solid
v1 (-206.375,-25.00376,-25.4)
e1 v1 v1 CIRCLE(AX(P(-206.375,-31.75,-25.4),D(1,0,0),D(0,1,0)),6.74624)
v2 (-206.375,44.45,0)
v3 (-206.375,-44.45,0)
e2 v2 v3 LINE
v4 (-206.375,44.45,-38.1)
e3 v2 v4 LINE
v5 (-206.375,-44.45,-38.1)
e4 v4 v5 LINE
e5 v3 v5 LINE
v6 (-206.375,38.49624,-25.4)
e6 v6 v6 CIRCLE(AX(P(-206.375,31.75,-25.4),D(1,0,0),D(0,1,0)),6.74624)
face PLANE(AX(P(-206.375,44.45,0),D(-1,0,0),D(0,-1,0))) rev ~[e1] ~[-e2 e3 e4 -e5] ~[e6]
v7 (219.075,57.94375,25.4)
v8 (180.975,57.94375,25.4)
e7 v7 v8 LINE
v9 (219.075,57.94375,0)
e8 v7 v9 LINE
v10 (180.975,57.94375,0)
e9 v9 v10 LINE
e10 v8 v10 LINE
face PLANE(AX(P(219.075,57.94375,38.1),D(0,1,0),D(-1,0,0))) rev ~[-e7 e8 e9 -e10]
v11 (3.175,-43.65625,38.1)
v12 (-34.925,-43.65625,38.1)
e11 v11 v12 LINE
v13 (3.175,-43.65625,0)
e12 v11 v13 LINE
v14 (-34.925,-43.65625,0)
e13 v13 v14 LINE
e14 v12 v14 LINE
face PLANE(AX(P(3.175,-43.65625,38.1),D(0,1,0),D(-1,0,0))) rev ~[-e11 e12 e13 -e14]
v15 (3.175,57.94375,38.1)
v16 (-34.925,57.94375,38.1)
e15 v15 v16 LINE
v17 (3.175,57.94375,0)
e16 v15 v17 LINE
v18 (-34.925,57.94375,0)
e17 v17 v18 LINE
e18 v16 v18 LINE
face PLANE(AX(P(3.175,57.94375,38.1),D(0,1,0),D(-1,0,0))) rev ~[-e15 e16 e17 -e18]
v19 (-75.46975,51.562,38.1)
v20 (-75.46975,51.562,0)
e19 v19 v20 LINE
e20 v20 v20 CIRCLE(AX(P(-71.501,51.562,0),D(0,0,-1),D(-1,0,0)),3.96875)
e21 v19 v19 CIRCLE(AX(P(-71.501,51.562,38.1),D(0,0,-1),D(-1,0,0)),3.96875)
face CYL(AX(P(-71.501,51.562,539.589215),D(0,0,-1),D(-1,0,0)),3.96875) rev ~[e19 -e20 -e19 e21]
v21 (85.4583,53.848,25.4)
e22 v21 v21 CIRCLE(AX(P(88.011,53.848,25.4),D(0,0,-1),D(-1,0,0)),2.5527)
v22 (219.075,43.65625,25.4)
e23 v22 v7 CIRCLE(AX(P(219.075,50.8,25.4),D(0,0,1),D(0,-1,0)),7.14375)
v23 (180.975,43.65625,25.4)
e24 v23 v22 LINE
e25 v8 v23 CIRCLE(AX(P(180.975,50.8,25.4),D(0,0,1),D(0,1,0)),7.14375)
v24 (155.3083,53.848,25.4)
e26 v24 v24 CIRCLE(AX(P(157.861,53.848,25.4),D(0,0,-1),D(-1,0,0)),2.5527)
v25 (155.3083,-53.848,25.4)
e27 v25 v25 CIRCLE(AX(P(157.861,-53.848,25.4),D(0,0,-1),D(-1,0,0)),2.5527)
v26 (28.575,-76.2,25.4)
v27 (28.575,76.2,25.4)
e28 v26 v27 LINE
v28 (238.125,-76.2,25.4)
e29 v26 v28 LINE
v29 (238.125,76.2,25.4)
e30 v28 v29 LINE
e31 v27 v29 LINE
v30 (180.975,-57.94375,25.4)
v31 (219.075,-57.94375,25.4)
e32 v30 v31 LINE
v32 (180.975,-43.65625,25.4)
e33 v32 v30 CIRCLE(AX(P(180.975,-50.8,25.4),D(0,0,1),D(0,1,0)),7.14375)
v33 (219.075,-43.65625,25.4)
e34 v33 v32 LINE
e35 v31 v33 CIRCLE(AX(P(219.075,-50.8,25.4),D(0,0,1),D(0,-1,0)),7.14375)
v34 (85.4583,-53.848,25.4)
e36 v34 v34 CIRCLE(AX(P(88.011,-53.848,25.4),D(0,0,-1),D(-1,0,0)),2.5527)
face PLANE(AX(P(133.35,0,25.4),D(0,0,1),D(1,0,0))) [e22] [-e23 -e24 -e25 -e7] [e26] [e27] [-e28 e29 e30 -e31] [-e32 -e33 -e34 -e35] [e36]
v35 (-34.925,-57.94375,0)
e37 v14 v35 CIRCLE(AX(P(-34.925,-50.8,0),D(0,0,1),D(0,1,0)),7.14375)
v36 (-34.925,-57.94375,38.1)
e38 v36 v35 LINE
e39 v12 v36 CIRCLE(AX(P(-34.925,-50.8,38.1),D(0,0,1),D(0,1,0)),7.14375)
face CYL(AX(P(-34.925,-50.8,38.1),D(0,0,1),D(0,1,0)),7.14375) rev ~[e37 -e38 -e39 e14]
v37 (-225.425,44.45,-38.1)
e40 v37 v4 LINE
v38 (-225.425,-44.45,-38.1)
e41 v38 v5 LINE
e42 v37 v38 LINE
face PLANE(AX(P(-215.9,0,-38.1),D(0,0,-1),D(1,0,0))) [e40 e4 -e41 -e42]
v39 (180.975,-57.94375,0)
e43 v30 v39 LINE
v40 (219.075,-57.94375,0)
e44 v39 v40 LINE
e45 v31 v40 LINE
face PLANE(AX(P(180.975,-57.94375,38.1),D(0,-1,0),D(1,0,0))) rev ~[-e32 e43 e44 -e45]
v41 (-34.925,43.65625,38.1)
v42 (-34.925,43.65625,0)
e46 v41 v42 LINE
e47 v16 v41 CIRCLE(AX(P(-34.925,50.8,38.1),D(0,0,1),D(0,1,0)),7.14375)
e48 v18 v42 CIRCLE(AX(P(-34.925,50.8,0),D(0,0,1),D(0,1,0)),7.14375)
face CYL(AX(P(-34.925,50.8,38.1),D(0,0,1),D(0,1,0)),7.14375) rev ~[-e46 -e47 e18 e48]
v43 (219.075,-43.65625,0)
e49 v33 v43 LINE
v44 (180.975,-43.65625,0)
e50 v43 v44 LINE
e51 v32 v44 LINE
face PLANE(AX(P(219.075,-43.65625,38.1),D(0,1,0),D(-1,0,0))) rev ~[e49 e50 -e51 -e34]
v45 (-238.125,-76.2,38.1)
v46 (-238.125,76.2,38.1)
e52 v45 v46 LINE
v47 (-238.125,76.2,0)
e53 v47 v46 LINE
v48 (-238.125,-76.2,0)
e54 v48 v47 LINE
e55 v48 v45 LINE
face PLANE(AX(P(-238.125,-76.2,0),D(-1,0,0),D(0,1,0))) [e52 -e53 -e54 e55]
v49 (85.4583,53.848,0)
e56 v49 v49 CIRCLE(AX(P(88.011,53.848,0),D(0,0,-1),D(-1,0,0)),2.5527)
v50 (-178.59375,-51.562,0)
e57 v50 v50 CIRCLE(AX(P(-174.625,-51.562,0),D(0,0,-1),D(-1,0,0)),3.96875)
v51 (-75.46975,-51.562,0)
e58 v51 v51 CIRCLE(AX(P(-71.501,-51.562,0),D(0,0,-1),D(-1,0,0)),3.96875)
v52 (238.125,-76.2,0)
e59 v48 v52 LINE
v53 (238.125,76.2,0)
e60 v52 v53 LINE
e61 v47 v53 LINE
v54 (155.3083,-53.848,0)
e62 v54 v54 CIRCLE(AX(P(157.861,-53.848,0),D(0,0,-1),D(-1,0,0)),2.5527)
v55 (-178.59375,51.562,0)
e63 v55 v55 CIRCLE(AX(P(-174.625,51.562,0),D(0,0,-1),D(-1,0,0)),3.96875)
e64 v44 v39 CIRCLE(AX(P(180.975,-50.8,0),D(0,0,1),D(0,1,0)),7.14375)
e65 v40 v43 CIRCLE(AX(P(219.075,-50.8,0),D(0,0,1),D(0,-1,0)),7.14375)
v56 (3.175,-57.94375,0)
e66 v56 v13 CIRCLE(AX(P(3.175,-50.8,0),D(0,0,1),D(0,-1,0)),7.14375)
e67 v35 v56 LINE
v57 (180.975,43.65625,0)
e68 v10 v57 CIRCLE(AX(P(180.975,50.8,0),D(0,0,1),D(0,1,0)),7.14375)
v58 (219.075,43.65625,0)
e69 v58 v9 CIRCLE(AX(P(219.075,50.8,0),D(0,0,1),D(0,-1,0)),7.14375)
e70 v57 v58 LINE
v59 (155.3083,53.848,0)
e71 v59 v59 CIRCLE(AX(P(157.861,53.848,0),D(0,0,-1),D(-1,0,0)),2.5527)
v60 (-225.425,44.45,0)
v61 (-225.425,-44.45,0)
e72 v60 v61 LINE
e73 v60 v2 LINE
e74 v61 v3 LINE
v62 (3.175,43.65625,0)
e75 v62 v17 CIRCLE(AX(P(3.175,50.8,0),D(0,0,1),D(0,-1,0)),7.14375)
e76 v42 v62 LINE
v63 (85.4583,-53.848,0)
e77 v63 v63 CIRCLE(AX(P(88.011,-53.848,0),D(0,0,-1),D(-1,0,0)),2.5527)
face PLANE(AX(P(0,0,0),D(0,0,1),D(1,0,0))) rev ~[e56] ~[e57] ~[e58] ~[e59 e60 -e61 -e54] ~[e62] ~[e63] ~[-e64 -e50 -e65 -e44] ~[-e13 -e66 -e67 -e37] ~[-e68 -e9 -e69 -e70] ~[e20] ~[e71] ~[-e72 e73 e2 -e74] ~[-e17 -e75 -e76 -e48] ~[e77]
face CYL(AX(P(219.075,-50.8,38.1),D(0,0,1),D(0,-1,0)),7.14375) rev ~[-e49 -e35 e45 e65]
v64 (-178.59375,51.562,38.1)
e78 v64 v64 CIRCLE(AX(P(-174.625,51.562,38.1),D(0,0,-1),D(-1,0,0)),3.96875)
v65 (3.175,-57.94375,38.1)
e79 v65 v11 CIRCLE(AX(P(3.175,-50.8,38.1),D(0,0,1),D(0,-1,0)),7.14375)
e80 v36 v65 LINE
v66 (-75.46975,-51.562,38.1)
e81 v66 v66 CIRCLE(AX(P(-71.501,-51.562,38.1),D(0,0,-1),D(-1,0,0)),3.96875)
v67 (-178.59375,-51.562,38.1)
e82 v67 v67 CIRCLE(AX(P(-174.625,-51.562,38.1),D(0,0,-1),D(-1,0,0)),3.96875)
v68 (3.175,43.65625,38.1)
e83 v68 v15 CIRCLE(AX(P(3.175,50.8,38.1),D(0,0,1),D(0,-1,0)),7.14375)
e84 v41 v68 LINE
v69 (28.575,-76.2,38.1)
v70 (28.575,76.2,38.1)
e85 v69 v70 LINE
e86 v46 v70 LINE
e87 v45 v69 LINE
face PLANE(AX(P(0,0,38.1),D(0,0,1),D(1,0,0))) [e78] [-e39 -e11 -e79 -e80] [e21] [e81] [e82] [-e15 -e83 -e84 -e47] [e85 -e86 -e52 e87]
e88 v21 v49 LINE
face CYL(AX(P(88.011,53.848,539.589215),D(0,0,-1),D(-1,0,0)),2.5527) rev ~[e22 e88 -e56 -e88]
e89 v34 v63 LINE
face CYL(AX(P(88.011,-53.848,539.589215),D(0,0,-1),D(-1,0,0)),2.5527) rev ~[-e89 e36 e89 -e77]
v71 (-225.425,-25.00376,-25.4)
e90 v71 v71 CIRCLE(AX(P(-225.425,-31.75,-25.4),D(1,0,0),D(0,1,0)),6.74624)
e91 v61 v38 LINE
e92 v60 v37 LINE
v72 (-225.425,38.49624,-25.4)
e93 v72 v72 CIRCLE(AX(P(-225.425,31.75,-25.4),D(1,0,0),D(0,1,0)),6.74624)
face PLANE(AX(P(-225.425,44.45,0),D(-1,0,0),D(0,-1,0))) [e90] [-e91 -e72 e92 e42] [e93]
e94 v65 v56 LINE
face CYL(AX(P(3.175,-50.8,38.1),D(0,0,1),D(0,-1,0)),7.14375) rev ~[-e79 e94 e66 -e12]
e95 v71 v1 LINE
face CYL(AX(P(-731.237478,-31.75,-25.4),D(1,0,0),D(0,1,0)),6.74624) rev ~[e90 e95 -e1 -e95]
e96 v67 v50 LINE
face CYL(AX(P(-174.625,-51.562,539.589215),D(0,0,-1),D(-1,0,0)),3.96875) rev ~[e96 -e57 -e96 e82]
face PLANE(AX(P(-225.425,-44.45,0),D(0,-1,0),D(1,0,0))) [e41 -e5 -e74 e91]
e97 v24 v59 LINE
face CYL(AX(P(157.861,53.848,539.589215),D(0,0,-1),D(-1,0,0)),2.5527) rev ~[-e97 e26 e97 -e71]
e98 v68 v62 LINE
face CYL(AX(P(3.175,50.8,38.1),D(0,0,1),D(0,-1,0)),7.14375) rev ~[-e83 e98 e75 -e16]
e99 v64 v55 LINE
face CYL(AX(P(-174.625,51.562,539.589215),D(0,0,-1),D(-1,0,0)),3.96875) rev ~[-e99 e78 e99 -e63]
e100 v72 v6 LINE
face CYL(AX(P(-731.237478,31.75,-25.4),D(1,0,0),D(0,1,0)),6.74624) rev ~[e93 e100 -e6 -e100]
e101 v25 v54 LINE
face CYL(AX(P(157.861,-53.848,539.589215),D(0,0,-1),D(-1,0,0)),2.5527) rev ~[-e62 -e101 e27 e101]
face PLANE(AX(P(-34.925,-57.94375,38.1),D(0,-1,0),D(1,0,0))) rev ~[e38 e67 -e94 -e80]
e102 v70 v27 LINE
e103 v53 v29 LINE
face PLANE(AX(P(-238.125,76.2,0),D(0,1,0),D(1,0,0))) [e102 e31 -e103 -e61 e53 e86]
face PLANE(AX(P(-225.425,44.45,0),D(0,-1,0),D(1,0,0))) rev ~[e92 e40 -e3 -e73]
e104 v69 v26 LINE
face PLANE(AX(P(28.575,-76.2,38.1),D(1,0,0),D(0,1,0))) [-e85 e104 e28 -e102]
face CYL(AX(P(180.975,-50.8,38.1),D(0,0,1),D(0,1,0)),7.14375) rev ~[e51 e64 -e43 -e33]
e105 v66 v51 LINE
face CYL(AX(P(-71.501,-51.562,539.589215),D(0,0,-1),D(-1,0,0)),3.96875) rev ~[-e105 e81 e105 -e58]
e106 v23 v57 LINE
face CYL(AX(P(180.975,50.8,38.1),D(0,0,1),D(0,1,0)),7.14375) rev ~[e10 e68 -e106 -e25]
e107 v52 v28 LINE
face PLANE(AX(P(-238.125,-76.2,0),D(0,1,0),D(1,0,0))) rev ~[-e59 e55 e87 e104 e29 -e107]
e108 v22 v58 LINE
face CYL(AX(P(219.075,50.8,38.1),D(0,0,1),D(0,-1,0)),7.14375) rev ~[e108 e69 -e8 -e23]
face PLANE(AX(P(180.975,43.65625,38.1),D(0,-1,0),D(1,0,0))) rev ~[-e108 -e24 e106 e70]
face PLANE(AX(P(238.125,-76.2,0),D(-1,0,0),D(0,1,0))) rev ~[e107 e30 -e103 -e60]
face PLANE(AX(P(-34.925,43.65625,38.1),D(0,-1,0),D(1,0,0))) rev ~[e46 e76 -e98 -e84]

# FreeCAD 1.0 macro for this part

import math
import FreeCAD as App
import Part
import Sketcher

V = App.Vector
Q = App.Units.Quantity

doc = App.newDocument("Part")
body = doc.addObject("PartDesign::Body", "Body")

# Sketch on XY plane
sketch1 = doc.addObject("Sketcher::SketchObject", "Sketch")
body.addObject(sketch1)
sketch1.AttachmentSupport = (doc.XY_Plane, [""])
sketch1.MapMode = "FlatFace"
sketch1.addGeometry([
    Part.LineSegment(V(-238, 76, 0), V(-238, -76, 0)),
    Part.LineSegment(V(-238, -76, 0), V(238, -76, 0)),
    Part.LineSegment(V(238, -76, 0), V(238, 76, 0)),
    Part.LineSegment(V(238, 76, 0), V(-238, 76, 0)),
], False)
sketch1.addConstraint([
    Sketcher.Constraint("Coincident", 0, 2, 1, 1),
    Sketcher.Constraint("Coincident", 1, 2, 2, 1),
    Sketcher.Constraint("Coincident", 2, 2, 3, 1),
    Sketcher.Constraint("Coincident", 3, 2, 0, 1),
    Sketcher.Constraint("Vertical", 0),
    Sketcher.Constraint("Horizontal", 1),
    Sketcher.Constraint("Vertical", 2),
    Sketcher.Constraint("Horizontal", 3),
    Sketcher.Constraint("Symmetric", 0, 2, 2, 2, -1, 1),
    Sketcher.Constraint("DistanceY", 0, 2, 0, 1, Q("6 in")),
    Sketcher.Constraint("DistanceX", 1, 1, 1, 2, Q("18.75 in")),
])
pad1 = doc.addObject("PartDesign::Pad", "Pad")
body.addObject(pad1)
pad1.Profile = sketch1
pad1.Length = Q("1.5 in")

# Sketch on XY plane
sketch2 = doc.addObject("Sketcher::SketchObject", "Sketch001")
body.addObject(sketch2)
sketch2.AttachmentSupport = (doc.XY_Plane, [""])
sketch2.MapMode = "FlatFace"
sketch2.AttachmentOffset = App.Placement(V(0, 0, 1.5 * 25.4), App.Rotation())
sketch2.addGeometry([
    Part.LineSegment(V(29, 76, 0), V(29, -76, 0)),
    Part.LineSegment(V(29, -76, 0), V(238, -76, 0)),
    Part.LineSegment(V(238, -76, 0), V(238, 76, 0)),
    Part.LineSegment(V(238, 76, 0), V(29, 76, 0)),
], False)
sketch2.addConstraint([
    Sketcher.Constraint("Coincident", 0, 2, 1, 1),
    Sketcher.Constraint("Coincident", 1, 2, 2, 1),
    Sketcher.Constraint("Coincident", 2, 2, 3, 1),
    Sketcher.Constraint("Coincident", 3, 2, 0, 1),
    Sketcher.Constraint("Vertical", 0),
    Sketcher.Constraint("Horizontal", 1),
    Sketcher.Constraint("Vertical", 2),
    Sketcher.Constraint("Horizontal", 3),
    Sketcher.Constraint("DistanceY", 0, 2, 0, 1, Q("6 in")),
    Sketcher.Constraint("DistanceY", 0, 2, -1, 1, Q("3 in")),
    Sketcher.Constraint("DistanceX", 1, 1, 1, 2, Q("8.25 in")),
    Sketcher.Constraint("DistanceX", -1, 1, 0, 2, Q("1.125 in")),
])
pocket1 = doc.addObject("PartDesign::Pocket", "Pocket")
body.addObject(pocket1)
pocket1.Profile = sketch2
pocket1.Length = Q("0.5 in")

# Sketch on XY plane
sketch3 = doc.addObject("Sketcher::SketchObject", "Sketch002")
body.addObject(sketch3)
sketch3.AttachmentSupport = (doc.XY_Plane, [""])
sketch3.MapMode = "FlatFace"
sketch3.AttachmentOffset = App.Placement(V(0, 0, 1.5 * 25.4), App.Rotation())
sketch3.addGeometry([
    Part.LineSegment(V(3, -44, 0), V(-35, -44, 0)),  # 0
    Part.ArcOfCircle(Part.Circle(V(-35, -51, 0), V(0, 0, 1), 7), math.radians(90), math.radians(270)),  # 1
    Part.LineSegment(V(-35, -58, 0), V(3, -58, 0)),  # 2
    Part.ArcOfCircle(Part.Circle(V(3, -51, 0), V(0, 0, 1), 7), math.radians(-90), math.radians(90)),  # 3
    Part.LineSegment(V(219, -44, 0), V(181, -44, 0)),  # 4
    Part.ArcOfCircle(Part.Circle(V(181, -51, 0), V(0, 0, 1), 7), math.radians(90), math.radians(270)),  # 5
    Part.LineSegment(V(181, -58, 0), V(219, -58, 0)),  # 6
    Part.ArcOfCircle(Part.Circle(V(219, -51, 0), V(0, 0, 1), 7), math.radians(-90), math.radians(90)),  # 7
    Part.ArcOfCircle(Part.Circle(V(-35, 51, 0), V(0, 0, 1), 7), math.radians(90), math.radians(270)),  # 8
    Part.LineSegment(V(-35, 44, 0), V(3, 44, 0)),  # 9
    Part.ArcOfCircle(Part.Circle(V(3, 51, 0), V(0, 0, 1), 7), math.radians(-90), math.radians(90)),  # 10
    Part.LineSegment(V(3, 58, 0), V(-35, 58, 0)),  # 11
    Part.ArcOfCircle(Part.Circle(V(181, 51, 0), V(0, 0, 1), 7), math.radians(90), math.radians(270)),  # 12
    Part.LineSegment(V(181, 44, 0), V(219, 44, 0)),  # 13
    Part.ArcOfCircle(Part.Circle(V(219, 51, 0), V(0, 0, 1), 7), math.radians(-90), math.radians(90)),  # 14
    Part.LineSegment(V(219, 58, 0), V(181, 58, 0)),  # 15
], False)
sketch3.addConstraint([
    Sketcher.Constraint("Tangent", 0, 2, 1, 1),
    Sketcher.Constraint("Tangent", 1, 2, 2, 1),
    Sketcher.Constraint("Tangent", 2, 2, 3, 1),
    Sketcher.Constraint("Tangent", 3, 2, 0, 1),
    Sketcher.Constraint("Tangent", 4, 2, 5, 1),
    Sketcher.Constraint("Tangent", 5, 2, 6, 1),
    Sketcher.Constraint("Tangent", 6, 2, 7, 1),
    Sketcher.Constraint("Tangent", 7, 2, 4, 1),
    Sketcher.Constraint("Tangent", 8, 2, 9, 1),
    Sketcher.Constraint("Tangent", 9, 2, 10, 1),
    Sketcher.Constraint("Tangent", 10, 2, 11, 1),
    Sketcher.Constraint("Tangent", 11, 2, 8, 1),
    Sketcher.Constraint("Tangent", 12, 2, 13, 1),
    Sketcher.Constraint("Tangent", 13, 2, 14, 1),
    Sketcher.Constraint("Tangent", 14, 2, 15, 1),
    Sketcher.Constraint("Tangent", 15, 2, 12, 1),
    Sketcher.Constraint("Horizontal", 0),
    Sketcher.Constraint("Horizontal", 2),
    Sketcher.Constraint("Horizontal", 4),
    Sketcher.Constraint("Horizontal", 6),
    Sketcher.Constraint("Horizontal", 9),
    Sketcher.Constraint("Horizontal", 11),
    Sketcher.Constraint("Horizontal", 13),
    Sketcher.Constraint("Horizontal", 15),
    Sketcher.Constraint("Equal", 3, 5),
    Sketcher.Constraint("Equal", 7, 8),
    Sketcher.Constraint("Equal", 10, 12),
    Sketcher.Constraint("Symmetric", 1, 3, 8, 3, -1),
    Sketcher.Constraint("Symmetric", 5, 3, 12, 3, -1),
    Sketcher.Constraint("Horizontal", 3, 3, 5, 3),
    Sketcher.Constraint("Vertical", 3, 3, 10, 3),
    Sketcher.Constraint("Vertical", 7, 3, 14, 3),
    Sketcher.Constraint("Equal", 2, 4),
    Sketcher.Constraint("DistanceX", 0, 2, 0, 1, Q("1.5 in")),
    Sketcher.Constraint("DistanceY", 1, 3, -1, 1, Q("2 in")),
    Sketcher.Constraint("Radius", 1, Q("0.28125 in")),
    Sketcher.Constraint("DistanceX", 3, 3, 5, 3, Q("7 in")),
    Sketcher.Constraint("DistanceX", 1, 3, -1, 1, Q("1.375 in")),
])
pocket2 = doc.addObject("PartDesign::Pocket", "Pocket001")
body.addObject(pocket2)
pocket2.Profile = sketch3
pocket2.Type = "ThroughAll"

# Sketch on XY plane
sketch4 = doc.addObject("Sketcher::SketchObject", "Sketch003")
body.addObject(sketch4)
sketch4.AttachmentSupport = (doc.XY_Plane, [""])
sketch4.MapMode = "FlatFace"
sketch4.AttachmentOffset = App.Placement(V(0, 0, 1.5 * 25.4), App.Rotation())
sketch4.addGeometry([
    Part.Circle(V(-174.6, 51.6, 0), V(0, 0, 1), 4),
    Part.Circle(V(-71.5, 51.6, 0), V(0, 0, 1), 4),
    Part.Circle(V(-174.6, -51.6, 0), V(0, 0, 1), 4),
    Part.Circle(V(-71.5, -51.6, 0), V(0, 0, 1), 4),
], False)
sketch4.addConstraint([
    Sketcher.Constraint("Equal", 0, 1),
    Sketcher.Constraint("Equal", 1, 2),
    Sketcher.Constraint("Equal", 2, 3),
    Sketcher.Constraint("Symmetric", 0, 3, 2, 3, -1),
    Sketcher.Constraint("Symmetric", 1, 3, 3, 3, -1),
    Sketcher.Constraint("Horizontal", 0, 3, 1, 3),
    Sketcher.Constraint("Diameter", 0, Q("0.3125 in")),
    Sketcher.Constraint("DistanceY", -1, 1, 0, 3, Q("2.03 in")),
    Sketcher.Constraint("DistanceX", 0, 3, 1, 3, Q("4.06 in")),
    Sketcher.Constraint("DistanceX", 0, 3, -1, 1, Q("6.875 in")),
])
doc.recompute()
hole = doc.addObject("PartDesign::Hole", "Hole")
body.addObject(hole)
hole.Profile = sketch4
hole.ThreadType = "None"
hole.Diameter = Q("0.3125 in")
hole.DepthType = "ThroughAll"

# Sketch on XY plane
sketch5 = doc.addObject("Sketcher::SketchObject", "Sketch004")
body.addObject(sketch5)
sketch5.AttachmentSupport = (doc.XY_Plane, [""])
sketch5.MapMode = "FlatFace"
sketch5.AttachmentOffset = App.Placement(V(0, 0, 1.5 * 25.4), App.Rotation())
sketch5.addGeometry([
    Part.Circle(V(88, 53.8, 0), V(0, 0, 1), 2.6),
    Part.Circle(V(157.9, 53.8, 0), V(0, 0, 1), 2.6),
    Part.Circle(V(88, -53.8, 0), V(0, 0, 1), 2.6),
    Part.Circle(V(157.9, -53.8, 0), V(0, 0, 1), 2.6),
], False)
sketch5.addConstraint([
    Sketcher.Constraint("Equal", 0, 1),
    Sketcher.Constraint("Equal", 1, 2),
    Sketcher.Constraint("Equal", 2, 3),
    Sketcher.Constraint("Symmetric", 0, 3, 2, 3, -1),
    Sketcher.Constraint("Symmetric", 1, 3, 3, 3, -1),
    Sketcher.Constraint("Horizontal", 0, 3, 1, 3),
    Sketcher.Constraint("Diameter", 0, Q("0.201 in")),
    Sketcher.Constraint("DistanceY", -1, 1, 0, 3, Q("2.12 in")),
    Sketcher.Constraint("DistanceX", 0, 3, 1, 3, Q("2.75 in")),
    Sketcher.Constraint("DistanceX", -1, 1, 0, 3, Q("3.465 in")),
])
doc.recompute()
hole2 = doc.addObject("PartDesign::Hole", "Hole001")
body.addObject(hole2)
hole2.Profile = sketch5
hole2.ThreadType = "None"
hole2.Diameter = Q("0.201 in")
hole2.DepthType = "ThroughAll"

# Sketch on XY plane
sketch6 = doc.addObject("Sketcher::SketchObject", "Sketch005")
body.addObject(sketch6)
sketch6.AttachmentSupport = (doc.XY_Plane, [""])
sketch6.MapMode = "FlatFace"
sketch6.addGeometry([
    Part.LineSegment(V(-225, -44, 0), V(-225, 44, 0)),
    Part.LineSegment(V(-225, 44, 0), V(-206, 44, 0)),
    Part.LineSegment(V(-206, 44, 0), V(-206, -44, 0)),
    Part.LineSegment(V(-206, -44, 0), V(-225, -44, 0)),
], False)
sketch6.addConstraint([
    Sketcher.Constraint("Coincident", 0, 2, 1, 1),
    Sketcher.Constraint("Coincident", 1, 2, 2, 1),
    Sketcher.Constraint("Coincident", 2, 2, 3, 1),
    Sketcher.Constraint("Coincident", 3, 2, 0, 1),
    Sketcher.Constraint("Vertical", 0),
    Sketcher.Constraint("Horizontal", 1),
    Sketcher.Constraint("Vertical", 2),
    Sketcher.Constraint("Horizontal", 3),
    Sketcher.Constraint("DistanceY", 0, 1, 0, 2, Q("3.5 in")),
    Sketcher.Constraint("DistanceX", 1, 1, 1, 2, Q("0.75 in")),
    Sketcher.Constraint("DistanceY", -1, 1, 0, 2, Q("1.75 in")),
    Sketcher.Constraint("DistanceX", 0, 2, -1, 1, Q("8.875 in")),
])
pad2 = doc.addObject("PartDesign::Pad", "Pad001")
body.addObject(pad2)
pad2.Profile = sketch6
pad2.Length = Q("1.5 in")
pad2.Reversed = True

# Sketch on YZ plane
sketch7 = doc.addObject("Sketcher::SketchObject", "Sketch006")
body.addObject(sketch7)
sketch7.AttachmentSupport = (doc.YZ_Plane, [""])
sketch7.MapMode = "FlatFace"
sketch7.AttachmentOffset = App.Placement(V(0, 0, -8.875 * 25.4), App.Rotation())
sketch7.addGeometry([
    Part.Circle(V(32, -25, 0), V(0, 0, 1), 7),
    Part.Circle(V(-32, -25, 0), V(0, 0, 1), 7),
], False)
sketch7.addConstraint([
    Sketcher.Constraint("Equal", 0, 1),
    Sketcher.Constraint("Symmetric", 0, 3, 1, 3, -2),
    Sketcher.Constraint("DistanceY", 0, 3, -1, 1, Q("1 in")),
    Sketcher.Constraint("Diameter", 0, Q("0.5312 in")),
    Sketcher.Constraint("DistanceX", 1, 3, 0, 3, Q("2.5 in")),
])
doc.recompute()
hole3 = doc.addObject("PartDesign::Hole", "Hole002")
body.addObject(hole3)
hole3.Profile = sketch7
hole3.ThreadType = "None"
hole3.Diameter = Q("0.5312 in")
hole3.DepthType = "ThroughAll"
hole3.Reversed = True

doc.recompute()
